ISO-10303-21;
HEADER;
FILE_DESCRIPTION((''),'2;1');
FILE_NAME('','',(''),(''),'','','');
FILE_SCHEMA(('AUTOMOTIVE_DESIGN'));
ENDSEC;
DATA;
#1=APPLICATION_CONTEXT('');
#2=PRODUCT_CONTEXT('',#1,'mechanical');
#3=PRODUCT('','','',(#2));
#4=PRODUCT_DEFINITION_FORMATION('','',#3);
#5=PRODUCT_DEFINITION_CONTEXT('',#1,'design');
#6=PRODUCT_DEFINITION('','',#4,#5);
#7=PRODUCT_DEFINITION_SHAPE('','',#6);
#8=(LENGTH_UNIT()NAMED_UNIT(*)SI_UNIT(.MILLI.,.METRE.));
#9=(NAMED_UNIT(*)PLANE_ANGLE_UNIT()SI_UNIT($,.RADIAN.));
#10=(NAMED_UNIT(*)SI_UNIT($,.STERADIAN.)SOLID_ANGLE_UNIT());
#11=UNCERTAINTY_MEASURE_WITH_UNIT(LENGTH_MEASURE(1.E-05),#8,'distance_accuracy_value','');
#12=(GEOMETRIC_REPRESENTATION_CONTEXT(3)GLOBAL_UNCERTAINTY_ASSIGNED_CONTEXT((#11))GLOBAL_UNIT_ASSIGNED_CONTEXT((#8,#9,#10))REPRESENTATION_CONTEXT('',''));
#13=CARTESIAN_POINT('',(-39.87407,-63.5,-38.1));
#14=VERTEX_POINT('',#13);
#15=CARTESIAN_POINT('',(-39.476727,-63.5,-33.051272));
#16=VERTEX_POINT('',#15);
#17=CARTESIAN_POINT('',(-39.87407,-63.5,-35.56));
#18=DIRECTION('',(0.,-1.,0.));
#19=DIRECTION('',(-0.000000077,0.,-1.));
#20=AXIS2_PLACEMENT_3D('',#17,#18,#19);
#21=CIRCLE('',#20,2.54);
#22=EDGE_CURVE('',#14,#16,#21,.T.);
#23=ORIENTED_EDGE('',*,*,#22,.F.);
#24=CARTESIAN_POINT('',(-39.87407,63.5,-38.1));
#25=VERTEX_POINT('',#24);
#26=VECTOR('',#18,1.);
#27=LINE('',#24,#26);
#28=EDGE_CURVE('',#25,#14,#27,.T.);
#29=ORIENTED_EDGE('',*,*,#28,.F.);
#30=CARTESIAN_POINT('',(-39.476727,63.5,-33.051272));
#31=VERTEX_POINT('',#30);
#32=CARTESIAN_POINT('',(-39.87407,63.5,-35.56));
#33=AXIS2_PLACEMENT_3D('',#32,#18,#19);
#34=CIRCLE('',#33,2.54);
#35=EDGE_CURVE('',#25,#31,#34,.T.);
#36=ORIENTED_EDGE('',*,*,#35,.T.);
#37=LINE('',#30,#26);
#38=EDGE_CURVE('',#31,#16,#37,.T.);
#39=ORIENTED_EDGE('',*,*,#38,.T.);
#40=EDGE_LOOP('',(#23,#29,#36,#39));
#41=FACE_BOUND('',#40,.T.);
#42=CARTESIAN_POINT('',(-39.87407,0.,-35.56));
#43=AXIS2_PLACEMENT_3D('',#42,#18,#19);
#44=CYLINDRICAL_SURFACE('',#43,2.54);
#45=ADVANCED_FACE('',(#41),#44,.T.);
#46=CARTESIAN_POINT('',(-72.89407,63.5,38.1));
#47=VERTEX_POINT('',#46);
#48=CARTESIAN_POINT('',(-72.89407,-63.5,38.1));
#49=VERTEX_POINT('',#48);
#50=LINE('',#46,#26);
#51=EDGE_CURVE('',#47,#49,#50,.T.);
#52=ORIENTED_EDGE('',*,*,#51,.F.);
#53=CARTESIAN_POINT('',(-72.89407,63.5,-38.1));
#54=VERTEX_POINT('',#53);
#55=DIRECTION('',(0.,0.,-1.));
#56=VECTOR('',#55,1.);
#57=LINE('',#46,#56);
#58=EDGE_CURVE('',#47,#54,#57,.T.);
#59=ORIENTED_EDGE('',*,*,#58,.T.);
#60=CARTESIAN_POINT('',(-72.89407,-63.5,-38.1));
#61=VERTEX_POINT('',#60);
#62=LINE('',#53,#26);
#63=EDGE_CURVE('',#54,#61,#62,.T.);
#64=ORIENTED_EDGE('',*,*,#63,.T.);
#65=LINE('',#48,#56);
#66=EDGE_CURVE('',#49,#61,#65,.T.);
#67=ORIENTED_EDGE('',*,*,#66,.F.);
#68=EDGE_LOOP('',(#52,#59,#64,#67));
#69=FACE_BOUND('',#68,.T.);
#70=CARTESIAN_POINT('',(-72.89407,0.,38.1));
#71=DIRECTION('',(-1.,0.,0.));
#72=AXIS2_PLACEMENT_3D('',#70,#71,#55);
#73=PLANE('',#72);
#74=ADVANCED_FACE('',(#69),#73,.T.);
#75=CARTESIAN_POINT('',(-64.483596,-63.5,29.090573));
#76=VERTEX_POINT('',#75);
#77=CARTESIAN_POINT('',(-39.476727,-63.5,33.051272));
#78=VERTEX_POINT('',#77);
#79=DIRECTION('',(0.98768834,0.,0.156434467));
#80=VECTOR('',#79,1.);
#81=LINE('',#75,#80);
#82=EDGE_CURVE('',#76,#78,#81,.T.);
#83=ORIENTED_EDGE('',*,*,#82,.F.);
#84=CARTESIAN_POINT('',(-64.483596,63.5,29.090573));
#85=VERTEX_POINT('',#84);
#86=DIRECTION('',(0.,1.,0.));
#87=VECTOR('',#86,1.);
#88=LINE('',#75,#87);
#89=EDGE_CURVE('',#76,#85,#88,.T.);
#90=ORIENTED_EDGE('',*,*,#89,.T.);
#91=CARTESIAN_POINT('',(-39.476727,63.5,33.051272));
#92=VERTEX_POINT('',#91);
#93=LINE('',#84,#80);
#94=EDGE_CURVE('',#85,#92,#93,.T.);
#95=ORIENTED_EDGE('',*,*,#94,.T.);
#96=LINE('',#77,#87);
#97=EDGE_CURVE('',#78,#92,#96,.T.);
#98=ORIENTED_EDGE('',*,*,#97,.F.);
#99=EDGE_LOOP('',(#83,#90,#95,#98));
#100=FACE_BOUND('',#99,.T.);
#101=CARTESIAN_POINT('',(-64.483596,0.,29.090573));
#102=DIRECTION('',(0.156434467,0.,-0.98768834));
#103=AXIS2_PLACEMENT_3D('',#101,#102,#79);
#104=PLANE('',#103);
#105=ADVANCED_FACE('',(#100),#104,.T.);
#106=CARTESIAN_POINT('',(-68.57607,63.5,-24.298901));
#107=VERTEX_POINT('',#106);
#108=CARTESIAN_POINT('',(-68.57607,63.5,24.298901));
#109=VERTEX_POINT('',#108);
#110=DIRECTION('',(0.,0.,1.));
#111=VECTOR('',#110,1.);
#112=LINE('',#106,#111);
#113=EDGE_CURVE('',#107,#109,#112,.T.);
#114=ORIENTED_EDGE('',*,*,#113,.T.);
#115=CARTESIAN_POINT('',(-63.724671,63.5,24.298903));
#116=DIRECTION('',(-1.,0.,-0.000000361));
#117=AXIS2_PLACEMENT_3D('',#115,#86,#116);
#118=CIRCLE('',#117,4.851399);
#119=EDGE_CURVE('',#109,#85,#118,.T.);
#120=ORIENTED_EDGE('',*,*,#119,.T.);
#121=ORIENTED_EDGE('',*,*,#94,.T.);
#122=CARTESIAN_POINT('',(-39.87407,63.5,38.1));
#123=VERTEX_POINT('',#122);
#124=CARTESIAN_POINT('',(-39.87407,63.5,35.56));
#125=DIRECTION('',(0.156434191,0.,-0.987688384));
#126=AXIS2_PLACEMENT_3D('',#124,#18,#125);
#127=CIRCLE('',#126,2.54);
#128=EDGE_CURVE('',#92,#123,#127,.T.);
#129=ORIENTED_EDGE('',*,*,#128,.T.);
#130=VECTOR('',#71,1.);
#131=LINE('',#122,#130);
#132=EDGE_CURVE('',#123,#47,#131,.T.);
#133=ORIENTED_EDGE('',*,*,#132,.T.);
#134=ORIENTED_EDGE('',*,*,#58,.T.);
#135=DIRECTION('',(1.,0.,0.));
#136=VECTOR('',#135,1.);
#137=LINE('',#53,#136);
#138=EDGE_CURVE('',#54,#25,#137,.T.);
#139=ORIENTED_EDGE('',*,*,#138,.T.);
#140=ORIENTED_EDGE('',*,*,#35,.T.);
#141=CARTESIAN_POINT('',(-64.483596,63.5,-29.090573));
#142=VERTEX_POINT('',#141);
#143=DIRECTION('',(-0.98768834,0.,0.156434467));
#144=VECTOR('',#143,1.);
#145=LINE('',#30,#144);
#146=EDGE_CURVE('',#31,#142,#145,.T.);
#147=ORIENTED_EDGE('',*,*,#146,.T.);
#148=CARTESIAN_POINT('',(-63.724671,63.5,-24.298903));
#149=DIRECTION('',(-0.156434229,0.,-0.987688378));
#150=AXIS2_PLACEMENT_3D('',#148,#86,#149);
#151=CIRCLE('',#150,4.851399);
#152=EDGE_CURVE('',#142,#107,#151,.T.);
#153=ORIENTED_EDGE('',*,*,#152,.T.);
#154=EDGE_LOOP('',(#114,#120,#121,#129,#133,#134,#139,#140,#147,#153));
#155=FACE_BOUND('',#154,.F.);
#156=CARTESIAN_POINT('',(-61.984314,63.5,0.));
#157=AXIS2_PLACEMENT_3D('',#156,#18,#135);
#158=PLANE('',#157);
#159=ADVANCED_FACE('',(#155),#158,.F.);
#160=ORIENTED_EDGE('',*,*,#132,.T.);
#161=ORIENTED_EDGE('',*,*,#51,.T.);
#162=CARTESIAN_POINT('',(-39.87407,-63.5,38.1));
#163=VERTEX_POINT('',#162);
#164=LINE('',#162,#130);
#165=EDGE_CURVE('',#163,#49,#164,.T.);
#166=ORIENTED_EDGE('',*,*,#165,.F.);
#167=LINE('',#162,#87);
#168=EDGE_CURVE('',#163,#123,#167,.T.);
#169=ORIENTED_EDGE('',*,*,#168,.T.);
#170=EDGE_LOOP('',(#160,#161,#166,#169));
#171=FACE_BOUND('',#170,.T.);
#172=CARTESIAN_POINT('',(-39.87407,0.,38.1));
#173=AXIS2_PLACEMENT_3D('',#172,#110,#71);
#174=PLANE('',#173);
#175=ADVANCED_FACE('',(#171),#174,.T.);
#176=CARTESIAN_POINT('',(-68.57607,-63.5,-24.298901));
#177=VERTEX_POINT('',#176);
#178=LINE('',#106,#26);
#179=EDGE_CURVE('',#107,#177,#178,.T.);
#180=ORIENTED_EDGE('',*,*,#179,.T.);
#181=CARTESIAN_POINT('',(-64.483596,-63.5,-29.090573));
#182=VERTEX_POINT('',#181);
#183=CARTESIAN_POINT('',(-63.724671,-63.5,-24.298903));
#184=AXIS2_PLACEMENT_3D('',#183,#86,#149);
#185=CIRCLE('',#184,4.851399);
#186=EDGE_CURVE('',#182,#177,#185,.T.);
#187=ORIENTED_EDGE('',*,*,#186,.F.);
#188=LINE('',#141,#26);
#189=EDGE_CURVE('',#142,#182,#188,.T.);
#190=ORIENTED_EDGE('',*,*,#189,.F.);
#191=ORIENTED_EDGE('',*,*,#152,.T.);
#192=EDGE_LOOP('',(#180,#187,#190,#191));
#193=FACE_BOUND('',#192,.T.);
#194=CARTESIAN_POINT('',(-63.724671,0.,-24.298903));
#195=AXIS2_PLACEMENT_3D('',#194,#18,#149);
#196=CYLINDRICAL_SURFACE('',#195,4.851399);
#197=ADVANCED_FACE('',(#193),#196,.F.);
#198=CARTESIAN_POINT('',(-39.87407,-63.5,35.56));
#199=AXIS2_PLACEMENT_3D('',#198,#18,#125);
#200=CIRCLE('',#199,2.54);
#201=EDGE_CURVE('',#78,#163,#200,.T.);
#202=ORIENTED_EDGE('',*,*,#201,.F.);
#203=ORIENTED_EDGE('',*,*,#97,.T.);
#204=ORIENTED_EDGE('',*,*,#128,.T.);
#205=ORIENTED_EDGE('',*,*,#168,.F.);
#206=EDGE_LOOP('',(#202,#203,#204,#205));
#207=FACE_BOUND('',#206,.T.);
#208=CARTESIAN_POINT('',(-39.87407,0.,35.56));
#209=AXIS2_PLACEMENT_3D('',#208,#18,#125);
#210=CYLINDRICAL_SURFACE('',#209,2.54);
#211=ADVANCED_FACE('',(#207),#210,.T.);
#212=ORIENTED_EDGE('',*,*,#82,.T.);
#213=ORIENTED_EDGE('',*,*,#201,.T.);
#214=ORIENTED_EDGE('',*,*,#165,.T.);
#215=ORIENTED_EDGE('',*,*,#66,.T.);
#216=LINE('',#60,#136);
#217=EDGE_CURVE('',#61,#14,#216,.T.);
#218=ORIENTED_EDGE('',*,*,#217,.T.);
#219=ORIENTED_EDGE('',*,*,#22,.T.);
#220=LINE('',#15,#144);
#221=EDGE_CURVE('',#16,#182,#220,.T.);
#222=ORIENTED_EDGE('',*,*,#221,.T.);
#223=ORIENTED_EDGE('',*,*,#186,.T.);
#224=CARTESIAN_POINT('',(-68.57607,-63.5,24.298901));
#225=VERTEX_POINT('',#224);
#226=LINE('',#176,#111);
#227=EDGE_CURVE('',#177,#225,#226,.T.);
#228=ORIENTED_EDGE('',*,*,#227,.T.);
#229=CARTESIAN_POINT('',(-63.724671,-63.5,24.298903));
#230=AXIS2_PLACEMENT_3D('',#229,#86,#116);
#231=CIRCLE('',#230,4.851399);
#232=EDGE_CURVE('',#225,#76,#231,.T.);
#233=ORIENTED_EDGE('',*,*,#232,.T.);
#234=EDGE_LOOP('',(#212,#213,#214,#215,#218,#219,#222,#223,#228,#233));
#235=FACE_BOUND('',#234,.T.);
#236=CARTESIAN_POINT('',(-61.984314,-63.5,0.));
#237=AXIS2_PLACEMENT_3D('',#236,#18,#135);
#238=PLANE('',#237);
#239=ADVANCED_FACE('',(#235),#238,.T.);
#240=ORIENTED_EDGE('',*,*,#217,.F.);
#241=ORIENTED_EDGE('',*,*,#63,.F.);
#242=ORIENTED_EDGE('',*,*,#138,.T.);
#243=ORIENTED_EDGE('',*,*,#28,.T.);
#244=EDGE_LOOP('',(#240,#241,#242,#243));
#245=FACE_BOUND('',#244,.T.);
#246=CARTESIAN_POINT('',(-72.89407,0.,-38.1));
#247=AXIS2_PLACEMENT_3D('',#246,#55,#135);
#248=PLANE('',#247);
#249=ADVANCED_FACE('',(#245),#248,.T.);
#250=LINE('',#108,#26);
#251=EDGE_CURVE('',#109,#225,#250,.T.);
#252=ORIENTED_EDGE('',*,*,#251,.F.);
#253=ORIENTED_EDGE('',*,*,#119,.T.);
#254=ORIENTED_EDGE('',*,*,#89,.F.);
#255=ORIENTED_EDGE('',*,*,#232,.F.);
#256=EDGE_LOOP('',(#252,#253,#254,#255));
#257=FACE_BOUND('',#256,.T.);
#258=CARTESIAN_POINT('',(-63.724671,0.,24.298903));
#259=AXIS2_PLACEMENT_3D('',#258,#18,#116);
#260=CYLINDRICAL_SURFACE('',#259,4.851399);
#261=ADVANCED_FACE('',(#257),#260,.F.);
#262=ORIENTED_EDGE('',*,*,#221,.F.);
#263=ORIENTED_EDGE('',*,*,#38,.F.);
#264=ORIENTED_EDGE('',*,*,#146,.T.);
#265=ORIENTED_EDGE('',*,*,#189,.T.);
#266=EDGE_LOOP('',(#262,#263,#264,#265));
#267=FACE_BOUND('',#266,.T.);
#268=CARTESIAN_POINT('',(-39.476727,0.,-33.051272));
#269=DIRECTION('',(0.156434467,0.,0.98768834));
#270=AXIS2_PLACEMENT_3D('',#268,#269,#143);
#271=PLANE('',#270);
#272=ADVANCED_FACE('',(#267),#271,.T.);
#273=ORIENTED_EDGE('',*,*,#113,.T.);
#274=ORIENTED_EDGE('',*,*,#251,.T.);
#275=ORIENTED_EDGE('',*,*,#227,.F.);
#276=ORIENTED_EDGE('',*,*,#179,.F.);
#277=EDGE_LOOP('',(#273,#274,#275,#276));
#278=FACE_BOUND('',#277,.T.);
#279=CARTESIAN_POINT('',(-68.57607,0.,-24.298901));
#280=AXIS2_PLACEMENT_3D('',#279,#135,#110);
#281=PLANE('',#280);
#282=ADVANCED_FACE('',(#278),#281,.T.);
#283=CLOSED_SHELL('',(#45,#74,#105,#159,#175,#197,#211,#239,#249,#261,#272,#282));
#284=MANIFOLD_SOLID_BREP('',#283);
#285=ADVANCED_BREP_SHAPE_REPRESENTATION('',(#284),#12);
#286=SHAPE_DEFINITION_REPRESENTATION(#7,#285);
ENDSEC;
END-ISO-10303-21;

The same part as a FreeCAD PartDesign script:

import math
import FreeCAD as App
import Part
import Sketcher

V = App.Vector
Q = App.Units.Quantity

doc = App.newDocument("Part")
params = doc.addObject("Spreadsheet::Sheet", "Params")
for row, (alias, value) in enumerate([
    ("sketch1_radius", "0.1 in"),
    ("sketch1_height", "3 in"),
    ("sketch1_width", "1.3 in"),
    ("sketch1_radius2", "0.191 in"),
    ("pad1_length", "5 in"),
], start=1):
    params.set(f"A{row}", alias)
    params.set(f"B{row}", "=" + value)
    params.setAlias(f"B{row}", alias)

body = doc.addObject("PartDesign::Body", "Body")

# Sketch on XZ plane
sketch1 = body.newObject("Sketcher::SketchObject", "Sketch")
sketch1.AttachmentSupport = (doc.getObject("XZ_Plane"), [""])
sketch1.MapMode = "FlatFace"
sketch1.addGeometry([
    Part.LineSegment(V(-39.9, 38.1, 0), V(-72.9, 38.1, 0)),  # 0
    Part.LineSegment(V(-72.9, 38.1, 0), V(-72.9, -38.1, 0)),  # 1
    Part.LineSegment(V(-72.9, -38.1, 0), V(-39.9, -38.1, 0)),  # 2
    Part.ArcOfCircle(Part.Circle(V(-39.9, -35.6, 0), V(0, 0, 1), 2.5), math.radians(-90), math.radians(81)),  # 3
    Part.LineSegment(V(-39.5, -33.1, 0), V(-64.5, -29.1, 0)),  # 4
    Part.ArcOfCircle(Part.Circle(V(-63.7, -24.3, 0), V(0, 0, 1), 4.9), math.radians(180), math.radians(261)),  # 5
    Part.LineSegment(V(-68.6, -24.3, 0), V(-68.6, 24.3, 0)),  # 6
    Part.ArcOfCircle(Part.Circle(V(-63.7, 24.3, 0), V(0, 0, 1), 4.9), math.radians(99), math.radians(180)),  # 7
    Part.LineSegment(V(-64.5, 29.1, 0), V(-39.5, 33.1, 0)),  # 8
    Part.ArcOfCircle(Part.Circle(V(-39.9, 35.6, 0), V(0, 0, 1), 2.5), math.radians(-81), math.radians(90)),  # 9
], False)
sketch1.addConstraint([
    Sketcher.Constraint("Coincident", 0, 2, 1, 1),
    Sketcher.Constraint("Coincident", 1, 2, 2, 1),
    Sketcher.Constraint("Tangent", 2, 2, 3, 1),
    Sketcher.Constraint("Tangent", 3, 2, 4, 1),
    Sketcher.Constraint("Tangent", 4, 2, 5, 2),
    Sketcher.Constraint("Tangent", 5, 1, 6, 1),
    Sketcher.Constraint("Tangent", 6, 2, 7, 2),
    Sketcher.Constraint("Tangent", 7, 1, 8, 1),
    Sketcher.Constraint("Tangent", 8, 2, 9, 1),
    Sketcher.Constraint("Tangent", 9, 2, 0, 1),
    Sketcher.Constraint("Horizontal", 0),
    Sketcher.Constraint("Vertical", 1),
    Sketcher.Constraint("Horizontal", 2),
    Sketcher.Constraint("Vertical", 6),
    Sketcher.Constraint("Equal", 5, 7),
    Sketcher.Constraint("Equal", 3, 9),
    Sketcher.Constraint("Symmetric", 3, 3, 9, 3, -1),
    Sketcher.Constraint("Vertical", 4, 2, 7, 1),
    Sketcher.Constraint("Radius", 3, Q("0.1 in")),
    Sketcher.Constraint("DistanceY", 1, 2, 1, 1, Q("3 in")),
    Sketcher.Constraint("DistanceX", 0, 2, 0, 1, Q("1.3 in")),
    Sketcher.Constraint("Angle", 4, Q("171 deg")),
    Sketcher.Constraint("Radius", 5, Q("0.191 in")),
    Sketcher.Constraint("DistanceX", 1, 2, 5, 1, Q("0.17 in")),
    Sketcher.Constraint("DistanceX", 3, 3, -1, 1, Q("39.87407 mm")),
])
sketch1.setExpression("Constraints[18]", "Params.sketch1_radius")
sketch1.setExpression("Constraints[19]", "Params.sketch1_height")
sketch1.setExpression("Constraints[20]", "Params.sketch1_width")
sketch1.setExpression("Constraints[22]", "Params.sketch1_radius2")
pad1 = body.newObject("PartDesign::Pad", "Pad")
pad1.Profile = sketch1
pad1.setExpression("Length", "Params.pad1_length")
pad1.Midplane = True

doc.recompute()
